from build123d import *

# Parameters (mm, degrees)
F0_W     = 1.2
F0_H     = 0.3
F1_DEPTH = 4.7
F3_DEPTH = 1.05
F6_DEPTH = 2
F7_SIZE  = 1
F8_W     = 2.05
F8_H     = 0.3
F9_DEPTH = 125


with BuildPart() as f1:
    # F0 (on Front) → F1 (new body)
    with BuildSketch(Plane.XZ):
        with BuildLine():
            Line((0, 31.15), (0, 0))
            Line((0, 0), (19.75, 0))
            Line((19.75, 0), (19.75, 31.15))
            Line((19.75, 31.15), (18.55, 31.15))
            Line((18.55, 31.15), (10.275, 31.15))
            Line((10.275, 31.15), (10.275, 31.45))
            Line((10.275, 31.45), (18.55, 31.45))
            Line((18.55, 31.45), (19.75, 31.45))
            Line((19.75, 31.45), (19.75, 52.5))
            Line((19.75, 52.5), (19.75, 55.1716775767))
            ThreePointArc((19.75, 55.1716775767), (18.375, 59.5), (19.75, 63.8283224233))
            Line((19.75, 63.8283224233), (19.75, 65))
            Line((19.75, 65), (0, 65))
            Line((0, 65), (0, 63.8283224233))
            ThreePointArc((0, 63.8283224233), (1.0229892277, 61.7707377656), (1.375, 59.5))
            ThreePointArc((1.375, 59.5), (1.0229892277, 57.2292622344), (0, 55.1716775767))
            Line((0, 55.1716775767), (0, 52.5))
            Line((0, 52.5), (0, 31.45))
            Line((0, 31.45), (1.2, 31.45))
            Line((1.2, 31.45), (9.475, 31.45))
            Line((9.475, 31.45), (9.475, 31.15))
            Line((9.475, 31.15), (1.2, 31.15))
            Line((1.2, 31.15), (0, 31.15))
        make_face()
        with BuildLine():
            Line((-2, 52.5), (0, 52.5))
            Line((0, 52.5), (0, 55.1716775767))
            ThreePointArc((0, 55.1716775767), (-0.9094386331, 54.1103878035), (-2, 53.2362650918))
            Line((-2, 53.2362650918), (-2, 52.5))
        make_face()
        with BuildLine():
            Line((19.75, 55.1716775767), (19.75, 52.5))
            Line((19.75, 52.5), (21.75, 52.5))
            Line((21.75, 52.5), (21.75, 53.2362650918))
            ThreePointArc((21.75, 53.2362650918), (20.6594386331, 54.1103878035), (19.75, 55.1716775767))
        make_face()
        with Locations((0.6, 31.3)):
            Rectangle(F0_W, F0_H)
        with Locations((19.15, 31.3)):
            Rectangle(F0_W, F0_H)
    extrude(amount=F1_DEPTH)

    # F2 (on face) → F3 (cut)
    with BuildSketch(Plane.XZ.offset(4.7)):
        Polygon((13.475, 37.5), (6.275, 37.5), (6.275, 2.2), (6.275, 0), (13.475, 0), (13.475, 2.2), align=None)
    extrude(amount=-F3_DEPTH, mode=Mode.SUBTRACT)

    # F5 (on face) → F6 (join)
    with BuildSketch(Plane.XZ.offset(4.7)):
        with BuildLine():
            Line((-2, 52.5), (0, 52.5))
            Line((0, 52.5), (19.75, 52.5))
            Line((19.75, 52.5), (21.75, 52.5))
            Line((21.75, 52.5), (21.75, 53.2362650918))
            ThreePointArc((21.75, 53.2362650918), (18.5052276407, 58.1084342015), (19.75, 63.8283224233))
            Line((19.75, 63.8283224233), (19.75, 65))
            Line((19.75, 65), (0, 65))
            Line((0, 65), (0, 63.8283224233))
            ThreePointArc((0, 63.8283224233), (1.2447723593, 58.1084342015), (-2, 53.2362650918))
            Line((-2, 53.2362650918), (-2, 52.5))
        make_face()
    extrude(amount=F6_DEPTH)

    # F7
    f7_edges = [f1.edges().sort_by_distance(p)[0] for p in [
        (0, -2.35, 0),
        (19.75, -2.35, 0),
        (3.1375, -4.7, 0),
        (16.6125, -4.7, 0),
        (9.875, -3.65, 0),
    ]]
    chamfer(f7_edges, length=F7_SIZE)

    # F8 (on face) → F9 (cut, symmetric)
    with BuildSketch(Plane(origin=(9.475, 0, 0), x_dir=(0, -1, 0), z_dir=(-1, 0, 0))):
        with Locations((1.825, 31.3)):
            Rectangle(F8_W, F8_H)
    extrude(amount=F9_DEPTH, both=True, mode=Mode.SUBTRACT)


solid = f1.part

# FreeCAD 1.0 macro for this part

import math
import FreeCAD as App
import Part
import Sketcher
Q = App.Units.Quantity


def edges_at(feature, points):
    """Names of the edges that pass closest to the given points."""
    edges = feature.Shape.Edges
    near = lambda p: min(range(len(edges)), key=lambda i: edges[i].distToShape(Part.Vertex(*p))[0])
    return sorted({f"Edge{near(p) + 1}" for p in points})

doc = App.newDocument("Part")
body = doc.addObject("PartDesign::Body", "Body")

# Sketch on XZ plane
sketch1 = body.newObject("Sketcher::SketchObject", "Sketch")
sketch1.AttachmentSupport = (doc.getObject("XZ_Plane"), [""])
sketch1.MapMode = "FlatFace"
sketch1.addGeometry(Part.LineSegment(App.Vector(0, 0, 0), App.Vector(19.75, 0, 0)), False)
sketch1.addGeometry(Part.LineSegment(App.Vector(19.75, 0, 0), App.Vector(19.75, 52.5, 0)), False)
sketch1.addGeometry(Part.LineSegment(App.Vector(19.75, 52.5, 0), App.Vector(21.75, 52.5, 0)), False)
sketch1.addGeometry(Part.LineSegment(App.Vector(21.75, 52.5, 0), App.Vector(21.75, 53.24, 0)), False)
sketch1.addGeometry(Part.ArcOfCircle(Part.Circle(App.Vector(25.87, 59.5, 0), App.Vector(0, 0, 1), 7.5), math.radians(-145), math.radians(-123)), False)
sketch1.addGeometry(Part.ArcOfCircle(Part.Circle(App.Vector(25.88, 59.5, 0), App.Vector(0, 0, 1), 7.5), math.radians(145), math.radians(215)), False)
sketch1.addGeometry(Part.LineSegment(App.Vector(19.75, 63.83, 0), App.Vector(19.75, 65, 0)), False)
sketch1.addGeometry(Part.LineSegment(App.Vector(19.75, 65, 0), App.Vector(0, 65, 0)), False)
sketch1.addGeometry(Part.LineSegment(App.Vector(0, 65, 0), App.Vector(0, 63.83, 0)), False)
sketch1.addGeometry(Part.ArcOfCircle(Part.Circle(App.Vector(-6.13, 59.5, 0), App.Vector(0, 0, 1), 7.5), math.radians(0), math.radians(35)), False)
sketch1.addGeometry(Part.ArcOfCircle(Part.Circle(App.Vector(-6.13, 59.5, 0), App.Vector(0, 0, 1), 7.5), math.radians(-35), math.radians(0)), False)
sketch1.addGeometry(Part.ArcOfCircle(Part.Circle(App.Vector(-6.12, 59.5, 0), App.Vector(0, 0, 1), 7.5), math.radians(-57), math.radians(-35)), False)
sketch1.addGeometry(Part.LineSegment(App.Vector(-2, 53.24, 0), App.Vector(-2, 52.5, 0)), False)
sketch1.addGeometry(Part.LineSegment(App.Vector(-2, 52.5, 0), App.Vector(0, 52.5, 0)), False)
sketch1.addGeometry(Part.LineSegment(App.Vector(0, 52.5, 0), App.Vector(0, 0, 0)), False)
sketch1.addGeometry(Part.LineSegment(App.Vector(18.55, 31.15, 0), App.Vector(10.28, 31.15, 0)), False)
sketch1.addGeometry(Part.LineSegment(App.Vector(10.28, 31.15, 0), App.Vector(10.28, 31.45, 0)), False)
sketch1.addGeometry(Part.LineSegment(App.Vector(10.28, 31.45, 0), App.Vector(18.55, 31.45, 0)), False)
sketch1.addGeometry(Part.LineSegment(App.Vector(18.55, 31.45, 0), App.Vector(18.55, 31.15, 0)), False)
sketch1.addGeometry(Part.LineSegment(App.Vector(1.2, 31.45, 0), App.Vector(9.47, 31.45, 0)), False)
sketch1.addGeometry(Part.LineSegment(App.Vector(9.47, 31.45, 0), App.Vector(9.47, 31.15, 0)), False)
sketch1.addGeometry(Part.LineSegment(App.Vector(9.47, 31.15, 0), App.Vector(1.2, 31.15, 0)), False)
sketch1.addGeometry(Part.LineSegment(App.Vector(1.2, 31.15, 0), App.Vector(1.2, 31.45, 0)), False)
sketch1.addConstraint(Sketcher.Constraint("Coincident", 0, 2, 1, 1))
sketch1.addConstraint(Sketcher.Constraint("Coincident", 1, 2, 2, 1))
sketch1.addConstraint(Sketcher.Constraint("Coincident", 2, 2, 3, 1))
sketch1.addConstraint(Sketcher.Constraint("Coincident", 3, 2, 4, 2))
sketch1.addConstraint(Sketcher.Constraint("Tangent", 4, 1, 5, 2))
sketch1.addConstraint(Sketcher.Constraint("Coincident", 5, 1, 6, 1))
sketch1.addConstraint(Sketcher.Constraint("Coincident", 6, 2, 7, 1))
sketch1.addConstraint(Sketcher.Constraint("Coincident", 7, 2, 8, 1))
sketch1.addConstraint(Sketcher.Constraint("Coincident", 8, 2, 9, 2))
sketch1.addConstraint(Sketcher.Constraint("Tangent", 9, 1, 10, 2))
sketch1.addConstraint(Sketcher.Constraint("Tangent", 10, 1, 11, 2))
sketch1.addConstraint(Sketcher.Constraint("Coincident", 11, 1, 12, 1))
sketch1.addConstraint(Sketcher.Constraint("Coincident", 12, 2, 13, 1))
sketch1.addConstraint(Sketcher.Constraint("Coincident", 13, 2, 14, 1))
sketch1.addConstraint(Sketcher.Constraint("Coincident", 14, 2, 0, 1))
sketch1.addConstraint(Sketcher.Constraint("Coincident", 15, 2, 16, 1))
sketch1.addConstraint(Sketcher.Constraint("Coincident", 16, 2, 17, 1))
sketch1.addConstraint(Sketcher.Constraint("Coincident", 17, 2, 18, 1))
sketch1.addConstraint(Sketcher.Constraint("Coincident", 18, 2, 15, 1))
sketch1.addConstraint(Sketcher.Constraint("Coincident", 19, 2, 20, 1))
sketch1.addConstraint(Sketcher.Constraint("Coincident", 20, 2, 21, 1))
sketch1.addConstraint(Sketcher.Constraint("Coincident", 21, 2, 22, 1))
sketch1.addConstraint(Sketcher.Constraint("Coincident", 22, 2, 19, 1))
sketch1.addConstraint(Sketcher.Constraint("Horizontal", 0))
sketch1.addConstraint(Sketcher.Constraint("Vertical", 1))
sketch1.addConstraint(Sketcher.Constraint("Horizontal", 2))
sketch1.addConstraint(Sketcher.Constraint("Vertical", 3))
sketch1.addConstraint(Sketcher.Constraint("Vertical", 6))
sketch1.addConstraint(Sketcher.Constraint("Horizontal", 7))
sketch1.addConstraint(Sketcher.Constraint("Vertical", 8))
sketch1.addConstraint(Sketcher.Constraint("Vertical", 12))
sketch1.addConstraint(Sketcher.Constraint("Horizontal", 13))
sketch1.addConstraint(Sketcher.Constraint("Vertical", 14))
sketch1.addConstraint(Sketcher.Constraint("Horizontal", 15))
sketch1.addConstraint(Sketcher.Constraint("Vertical", 16))
sketch1.addConstraint(Sketcher.Constraint("Horizontal", 17))
sketch1.addConstraint(Sketcher.Constraint("Vertical", 18))
sketch1.addConstraint(Sketcher.Constraint("Horizontal", 19))
sketch1.addConstraint(Sketcher.Constraint("Vertical", 20))
sketch1.addConstraint(Sketcher.Constraint("Horizontal", 21))
sketch1.addConstraint(Sketcher.Constraint("Vertical", 22))
sketch1.addConstraint(Sketcher.Constraint("Coincident", 14, 2, -1, 1))
sketch1.addConstraint(Sketcher.Constraint("Coincident", 11, 3, 9, 3))
sketch1.addConstraint(Sketcher.Constraint("Equal", 4, 5))
sketch1.addConstraint(Sketcher.Constraint("Equal", 5, 9))
sketch1.addConstraint(Sketcher.Constraint("PointOnObject", 7, 2, -2))
sketch1.addConstraint(Sketcher.Constraint("PointOnObject", 10, 1, -2))
sketch1.addConstraint(Sketcher.Constraint("Horizontal", 5, 3, 9, 3))
sketch1.addConstraint(Sketcher.Constraint("Horizontal", 5, 1, 8, 2))
sketch1.addConstraint(Sketcher.Constraint("Horizontal", 11, 3, 9, 1))
sketch1.addConstraint(Sketcher.Constraint("Horizontal", 4, 1, 10, 1))
sketch1.addConstraint(Sketcher.Constraint("Horizontal", 3, 2, 11, 1))
sketch1.addConstraint(Sketcher.Constraint("Horizontal", 2, 2, 12, 2))
sketch1.addConstraint(Sketcher.Constraint("Horizontal", 17, 2, 19, 2))
sketch1.addConstraint(Sketcher.Constraint("Horizontal", 18, 2, 20, 2))
sketch1.addConstraint(Sketcher.Constraint("Vertical", 1, 2, 4, 1))
sketch1.addConstraint(Sketcher.Constraint("Equal", 17, 19))
sketch1.addConstraint(Sketcher.Constraint("Radius", 4, Q("7.5 mm")))
sketch1.addConstraint(Sketcher.Constraint("DistanceX", 2, 1, 2, 2, Q("2 mm")))
sketch1.addConstraint(Sketcher.Constraint("DistanceY", 1, 1, 1, 2, Q("52.5 mm")))
sketch1.addConstraint(Sketcher.Constraint("DistanceY", 16, 1, 16, 2, Q("0.3 mm")))
sketch1.addConstraint(Sketcher.Constraint("DistanceY", -1, 1, 6, 2, Q("65 mm")))
sketch1.addConstraint(Sketcher.Constraint("DistanceX", 9, 3, 4, 3, Q("32 mm")))
sketch1.addConstraint(Sketcher.Constraint("DistanceY", 1, 2, 4, 3, Q("7 mm")))
sketch1.addConstraint(Sketcher.Constraint("DistanceX", 0, 1, 0, 2, Q("19.75 mm")))
sketch1.addConstraint(Sketcher.Constraint("DistanceX", -1, 1, 21, 2, Q("1.2 mm")))
sketch1.addConstraint(Sketcher.Constraint("DistanceX", 17, 2, 1, 2, Q("1.2 mm")))
sketch1.addConstraint(Sketcher.Constraint("DistanceX", 19, 2, 16, 2, Q("0.8 mm")))
sketch1.addConstraint(Sketcher.Constraint("DistanceY", -1, 1, 15, 2, Q("31.15 mm")))
pad1 = body.newObject("PartDesign::Pad", "Pad")
pad1.Profile = sketch1
pad1.Length = 4.7

# Sketch on XZ plane
sketch2 = body.newObject("Sketcher::SketchObject", "Sketch001")
sketch2.AttachmentSupport = (doc.getObject("XZ_Plane"), [""])
sketch2.MapMode = "FlatFace"
sketch2.AttachmentOffset = App.Placement(App.Vector(0, 0, 4.7), App.Rotation())
sketch2.addGeometry(Part.LineSegment(App.Vector(13, 38, 0), App.Vector(6, 38, 0)), False)
sketch2.addGeometry(Part.LineSegment(App.Vector(6, 38, 0), App.Vector(6, 0, 0)), False)
sketch2.addGeometry(Part.LineSegment(App.Vector(6, 0, 0), App.Vector(13, 0, 0)), False)
sketch2.addGeometry(Part.LineSegment(App.Vector(13, 0, 0), App.Vector(13, 38, 0)), False)
sketch2.addConstraint(Sketcher.Constraint("Coincident", 0, 2, 1, 1))
sketch2.addConstraint(Sketcher.Constraint("Coincident", 1, 2, 2, 1))
sketch2.addConstraint(Sketcher.Constraint("Coincident", 2, 2, 3, 1))
sketch2.addConstraint(Sketcher.Constraint("Coincident", 3, 2, 0, 1))
sketch2.addConstraint(Sketcher.Constraint("Horizontal", 0))
sketch2.addConstraint(Sketcher.Constraint("Vertical", 1))
sketch2.addConstraint(Sketcher.Constraint("Horizontal", 2))
sketch2.addConstraint(Sketcher.Constraint("Vertical", 3))
sketch2.addConstraint(Sketcher.Constraint("PointOnObject", 1, 2, -1))
sketch2.addConstraint(Sketcher.Constraint("DistanceX", 0, 2, 0, 1, Q("7.2 mm")))
sketch2.addConstraint(Sketcher.Constraint("DistanceY", 1, 2, 1, 1, Q("37.5 mm")))
sketch2.addConstraint(Sketcher.Constraint("DistanceX", -1, 1, 0, 2, Q("6.275 mm")))
pocket1 = body.newObject("PartDesign::Pocket", "Pocket")
pocket1.Profile = sketch2
pocket1.Length = 1.05

# Sketch on XZ plane
sketch3 = body.newObject("Sketcher::SketchObject", "Sketch002")
sketch3.AttachmentSupport = (doc.getObject("XZ_Plane"), [""])
sketch3.MapMode = "FlatFace"
sketch3.AttachmentOffset = App.Placement(App.Vector(0, 0, 4.7), App.Rotation())
sketch3.addGeometry(Part.LineSegment(App.Vector(-2, 52.5, 0), App.Vector(21.8, 52.5, 0)), False)
sketch3.addGeometry(Part.LineSegment(App.Vector(21.8, 52.5, 0), App.Vector(21.8, 53.2, 0)), False)
sketch3.addGeometry(Part.ArcOfCircle(Part.Circle(App.Vector(25.9, 59.5, 0), App.Vector(0, 0, 1), 7.5), math.radians(145), math.radians(237)), False)
sketch3.addGeometry(Part.LineSegment(App.Vector(19.8, 63.8, 0), App.Vector(19.8, 65, 0)), False)
sketch3.addGeometry(Part.LineSegment(App.Vector(19.8, 65, 0), App.Vector(0, 65, 0)), False)
sketch3.addGeometry(Part.LineSegment(App.Vector(0, 65, 0), App.Vector(0, 63.8, 0)), False)
sketch3.addGeometry(Part.ArcOfCircle(Part.Circle(App.Vector(-6.1, 59.5, 0), App.Vector(0, 0, 1), 7.5), math.radians(-57), math.radians(35)), False)
sketch3.addGeometry(Part.LineSegment(App.Vector(-2, 53.2, 0), App.Vector(-2, 52.5, 0)), False)
sketch3.addConstraint(Sketcher.Constraint("Coincident", 0, 2, 1, 1))
sketch3.addConstraint(Sketcher.Constraint("Coincident", 1, 2, 2, 2))
sketch3.addConstraint(Sketcher.Constraint("Coincident", 2, 1, 3, 1))
sketch3.addConstraint(Sketcher.Constraint("Coincident", 3, 2, 4, 1))
sketch3.addConstraint(Sketcher.Constraint("Coincident", 4, 2, 5, 1))
sketch3.addConstraint(Sketcher.Constraint("Coincident", 5, 2, 6, 2))
sketch3.addConstraint(Sketcher.Constraint("Coincident", 6, 1, 7, 1))
sketch3.addConstraint(Sketcher.Constraint("Coincident", 7, 2, 0, 1))
sketch3.addConstraint(Sketcher.Constraint("Horizontal", 0))
sketch3.addConstraint(Sketcher.Constraint("Vertical", 1))
sketch3.addConstraint(Sketcher.Constraint("Vertical", 3))
sketch3.addConstraint(Sketcher.Constraint("Horizontal", 4))
sketch3.addConstraint(Sketcher.Constraint("Vertical", 5))
sketch3.addConstraint(Sketcher.Constraint("Vertical", 7))
sketch3.addConstraint(Sketcher.Constraint("Equal", 2, 6))
sketch3.addConstraint(Sketcher.Constraint("PointOnObject", 4, 2, -2))
sketch3.addConstraint(Sketcher.Constraint("Horizontal", 2, 3, 6, 3))
sketch3.addConstraint(Sketcher.Constraint("Horizontal", 2, 1, 5, 2))
sketch3.addConstraint(Sketcher.Constraint("Horizontal", 1, 2, 6, 1))
sketch3.addConstraint(Sketcher.Constraint("Radius", 2, Q("7.5 mm")))
sketch3.addConstraint(Sketcher.Constraint("DistanceY", -1, 1, 3, 2, Q("65 mm")))
sketch3.addConstraint(Sketcher.Constraint("DistanceX", 6, 1, -1, 1, Q("2 mm")))
sketch3.addConstraint(Sketcher.Constraint("DistanceX", 6, 3, 2, 3, Q("32 mm")))
sketch3.addConstraint(Sketcher.Constraint("DistanceY", 0, 2, 2, 3, Q("7 mm")))
sketch3.addConstraint(Sketcher.Constraint("DistanceX", 0, 1, 0, 2, Q("23.75 mm")))
sketch3.addConstraint(Sketcher.Constraint("DistanceY", -1, 1, 2, 3, Q("59.5 mm")))
pad2 = body.newObject("PartDesign::Pad", "Pad001")
pad2.Profile = sketch3
pad2.Length = 2
doc.recompute()

chamfer = body.newObject("PartDesign::Chamfer", "Chamfer")
chamfer.Base = (pad2, edges_at(pad2, [
    (0, -2.35, 0),
    (19.75, -2.35, 0),
    (3.138, -4.7, 0),
    (16.613, -4.7, 0),
    (9.875, -3.65, 0),
]))
chamfer.Size = 1

# Sketch on YZ plane
sketch4 = body.newObject("Sketcher::SketchObject", "Sketch003")
sketch4.AttachmentSupport = (doc.getObject("YZ_Plane"), [""])
sketch4.MapMode = "FlatFace"
sketch4.AttachmentOffset = App.Placement(App.Vector(0, 0, 9.475), App.Rotation())
sketch4.addGeometry(Part.LineSegment(App.Vector(-0.8, 31.45, 0), App.Vector(-0.8, 31.15, 0)), False)
sketch4.addGeometry(Part.LineSegment(App.Vector(-0.8, 31.15, 0), App.Vector(-2.85, 31.15, 0)), False)
sketch4.addGeometry(Part.LineSegment(App.Vector(-2.85, 31.15, 0), App.Vector(-2.85, 31.45, 0)), False)
sketch4.addGeometry(Part.LineSegment(App.Vector(-2.85, 31.45, 0), App.Vector(-0.8, 31.45, 0)), False)
sketch4.addConstraint(Sketcher.Constraint("Coincident", 0, 2, 1, 1))
sketch4.addConstraint(Sketcher.Constraint("Coincident", 1, 2, 2, 1))
sketch4.addConstraint(Sketcher.Constraint("Coincident", 2, 2, 3, 1))
sketch4.addConstraint(Sketcher.Constraint("Coincident", 3, 2, 0, 1))
sketch4.addConstraint(Sketcher.Constraint("Vertical", 0))
sketch4.addConstraint(Sketcher.Constraint("Horizontal", 1))
sketch4.addConstraint(Sketcher.Constraint("Vertical", 2))
sketch4.addConstraint(Sketcher.Constraint("Horizontal", 3))
sketch4.addConstraint(Sketcher.Constraint("DistanceY", 0, 2, 0, 1, Q("0.3 mm")))
sketch4.addConstraint(Sketcher.Constraint("DistanceX", 1, 2, 1, 1, Q("2.05 mm")))
sketch4.addConstraint(Sketcher.Constraint("DistanceX", 0, 2, -1, 1, Q("0.8 mm")))
sketch4.addConstraint(Sketcher.Constraint("DistanceY", -1, 1, 0, 2, Q("31.15 mm")))
pocket2 = body.newObject("PartDesign::Pocket", "Pocket001")
pocket2.Profile = sketch4
pocket2.Length = 250
pocket2.Midplane = True

doc.recompute()
